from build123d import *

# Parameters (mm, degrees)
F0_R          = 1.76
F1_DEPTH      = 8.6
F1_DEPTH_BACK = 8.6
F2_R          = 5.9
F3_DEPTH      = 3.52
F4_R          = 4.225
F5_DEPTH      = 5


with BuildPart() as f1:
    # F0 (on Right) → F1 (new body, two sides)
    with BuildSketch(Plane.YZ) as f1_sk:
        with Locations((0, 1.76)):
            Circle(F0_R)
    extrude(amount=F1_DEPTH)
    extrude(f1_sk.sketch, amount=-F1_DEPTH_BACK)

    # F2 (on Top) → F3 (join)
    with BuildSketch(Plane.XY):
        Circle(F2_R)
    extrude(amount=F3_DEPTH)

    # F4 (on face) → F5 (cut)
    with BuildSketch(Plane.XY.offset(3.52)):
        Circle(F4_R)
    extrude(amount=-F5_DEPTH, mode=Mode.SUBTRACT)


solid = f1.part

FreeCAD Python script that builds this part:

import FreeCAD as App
import Part
import Sketcher

V = App.Vector

doc = App.newDocument("Part")
body = doc.addObject("PartDesign::Body", "Body")

sketch1 = doc.addObject("Sketcher::SketchObject", "Sketch")
body.addObject(sketch1)
sketch1.AttachmentSupport = (doc.YZ_Plane, [""])
sketch1.MapMode = "FlatFace"
sketch1.addGeometry(Part.Circle(V(0, 1.8, 0), V(0, 0, 1), 1.8), False)
sketch1.addConstraint(Sketcher.Constraint("PointOnObject", 0, 3, -2))
sketch1.addConstraint(Sketcher.Constraint("Diameter", 0, 3.52))
sketch1.addConstraint(Sketcher.Constraint("DistanceY", -1, 1, 0, 3, 1.76))
pad1 = doc.addObject("PartDesign::Pad", "Pad")
body.addObject(pad1)
pad1.Profile = sketch1
pad1.Type = "TwoLengths"
pad1.Length = 8.6
pad1.Length2 = 8.6

sketch2 = doc.addObject("Sketcher::SketchObject", "Sketch001")
body.addObject(sketch2)
sketch2.AttachmentSupport = (doc.XY_Plane, [""])
sketch2.MapMode = "FlatFace"
sketch2.addGeometry(Part.Circle(V(0, 0, 0), V(0, 0, 1), 6), False)
sketch2.addConstraint(Sketcher.Constraint("Coincident", 0, 3, -1, 1))
sketch2.addConstraint(Sketcher.Constraint("Diameter", 0, 11.8))
pad2 = doc.addObject("PartDesign::Pad", "Pad001")
body.addObject(pad2)
pad2.Profile = sketch2
pad2.Length = 3.52

sketch3 = doc.addObject("Sketcher::SketchObject", "Sketch002")
body.addObject(sketch3)
sketch3.AttachmentSupport = (doc.XY_Plane, [""])
sketch3.MapMode = "FlatFace"
sketch3.AttachmentOffset = App.Placement(V(0, 0, 3.52), App.Rotation())
sketch3.addGeometry(Part.Circle(V(0, 0, 0), V(0, 0, 1), 4.2), False)
sketch3.addConstraint(Sketcher.Constraint("Coincident", 0, 3, -1, 1))
sketch3.addConstraint(Sketcher.Constraint("Diameter", 0, 8.45))
pocket1 = doc.addObject("PartDesign::Pocket", "Pocket")
body.addObject(pocket1)
pocket1.Profile = sketch3
pocket1.Length = 5

doc.recompute()
